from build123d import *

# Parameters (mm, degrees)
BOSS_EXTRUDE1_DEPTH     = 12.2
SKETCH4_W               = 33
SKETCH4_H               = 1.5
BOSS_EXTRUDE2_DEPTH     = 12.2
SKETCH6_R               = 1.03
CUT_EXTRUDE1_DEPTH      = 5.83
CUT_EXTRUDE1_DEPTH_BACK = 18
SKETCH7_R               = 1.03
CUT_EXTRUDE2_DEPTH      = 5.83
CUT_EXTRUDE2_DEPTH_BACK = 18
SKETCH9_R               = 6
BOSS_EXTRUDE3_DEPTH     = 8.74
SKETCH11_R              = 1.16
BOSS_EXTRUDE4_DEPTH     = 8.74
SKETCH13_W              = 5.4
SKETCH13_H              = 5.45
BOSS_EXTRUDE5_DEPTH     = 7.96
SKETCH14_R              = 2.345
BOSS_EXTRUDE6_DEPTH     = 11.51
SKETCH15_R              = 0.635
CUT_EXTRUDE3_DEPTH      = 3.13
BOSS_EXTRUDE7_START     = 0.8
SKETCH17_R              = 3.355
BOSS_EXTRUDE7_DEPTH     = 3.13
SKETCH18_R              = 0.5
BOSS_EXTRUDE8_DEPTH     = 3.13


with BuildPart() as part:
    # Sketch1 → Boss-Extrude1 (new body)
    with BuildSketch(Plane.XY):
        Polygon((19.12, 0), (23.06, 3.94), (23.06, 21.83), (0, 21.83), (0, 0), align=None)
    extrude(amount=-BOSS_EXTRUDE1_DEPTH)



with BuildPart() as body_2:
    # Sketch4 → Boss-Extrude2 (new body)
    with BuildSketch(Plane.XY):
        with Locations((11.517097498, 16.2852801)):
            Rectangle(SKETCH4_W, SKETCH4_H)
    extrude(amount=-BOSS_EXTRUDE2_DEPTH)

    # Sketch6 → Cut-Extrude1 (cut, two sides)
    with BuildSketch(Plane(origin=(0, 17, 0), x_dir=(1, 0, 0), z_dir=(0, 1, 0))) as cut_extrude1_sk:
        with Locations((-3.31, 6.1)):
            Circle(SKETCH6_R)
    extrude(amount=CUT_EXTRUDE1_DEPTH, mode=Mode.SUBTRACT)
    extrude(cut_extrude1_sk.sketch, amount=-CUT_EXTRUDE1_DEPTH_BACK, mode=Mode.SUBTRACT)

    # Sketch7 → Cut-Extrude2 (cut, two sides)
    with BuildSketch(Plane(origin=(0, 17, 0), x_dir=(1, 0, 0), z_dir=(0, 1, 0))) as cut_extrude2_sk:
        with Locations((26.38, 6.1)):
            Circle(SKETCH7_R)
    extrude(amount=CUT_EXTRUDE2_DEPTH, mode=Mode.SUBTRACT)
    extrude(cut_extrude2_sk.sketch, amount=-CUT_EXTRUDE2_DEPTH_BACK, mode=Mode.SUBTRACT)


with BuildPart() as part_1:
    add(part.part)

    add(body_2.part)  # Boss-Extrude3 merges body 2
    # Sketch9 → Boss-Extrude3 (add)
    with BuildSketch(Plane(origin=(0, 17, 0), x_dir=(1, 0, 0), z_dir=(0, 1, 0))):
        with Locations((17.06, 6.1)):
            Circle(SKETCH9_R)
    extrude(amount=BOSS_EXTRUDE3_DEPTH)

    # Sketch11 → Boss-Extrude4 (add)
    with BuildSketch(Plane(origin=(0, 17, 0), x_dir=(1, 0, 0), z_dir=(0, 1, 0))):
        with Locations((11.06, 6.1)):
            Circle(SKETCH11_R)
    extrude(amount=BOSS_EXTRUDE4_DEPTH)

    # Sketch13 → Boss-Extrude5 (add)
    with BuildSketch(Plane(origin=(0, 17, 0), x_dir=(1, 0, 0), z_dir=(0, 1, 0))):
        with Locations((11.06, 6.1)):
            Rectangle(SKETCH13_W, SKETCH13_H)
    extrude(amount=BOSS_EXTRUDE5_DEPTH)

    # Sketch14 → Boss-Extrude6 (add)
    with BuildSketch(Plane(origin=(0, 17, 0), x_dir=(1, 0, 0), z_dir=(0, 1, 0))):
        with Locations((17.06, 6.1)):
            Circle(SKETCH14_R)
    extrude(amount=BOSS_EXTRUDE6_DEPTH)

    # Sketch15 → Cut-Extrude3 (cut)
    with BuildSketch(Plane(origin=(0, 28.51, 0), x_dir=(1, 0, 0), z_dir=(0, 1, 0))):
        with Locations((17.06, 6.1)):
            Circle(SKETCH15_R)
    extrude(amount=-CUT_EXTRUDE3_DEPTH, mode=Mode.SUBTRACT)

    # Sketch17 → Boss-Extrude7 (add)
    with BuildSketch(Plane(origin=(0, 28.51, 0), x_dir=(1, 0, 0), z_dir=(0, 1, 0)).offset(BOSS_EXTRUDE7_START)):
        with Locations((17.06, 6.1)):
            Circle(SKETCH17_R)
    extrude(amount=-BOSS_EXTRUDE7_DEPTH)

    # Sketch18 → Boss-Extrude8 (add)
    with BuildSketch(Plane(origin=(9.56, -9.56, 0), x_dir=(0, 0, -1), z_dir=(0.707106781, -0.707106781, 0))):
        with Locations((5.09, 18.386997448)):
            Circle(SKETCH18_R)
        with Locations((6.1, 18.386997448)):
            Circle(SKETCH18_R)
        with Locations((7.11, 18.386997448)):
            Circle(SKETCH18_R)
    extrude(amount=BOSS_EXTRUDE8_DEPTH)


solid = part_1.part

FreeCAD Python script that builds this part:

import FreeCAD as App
import Part
import Sketcher

V = App.Vector
Q = App.Units.Quantity


def add_polygon(sketch, points):
    """Adds a closed chain of lines whose ends are joined by coincident constraints."""
    first, n = sketch.GeometryCount, len(points)
    for a, b in zip(points, points[1:] + points[:1]):
        sketch.addGeometry(Part.LineSegment(App.Vector(*a, 0), App.Vector(*b, 0)), False)
    for i in range(n):
        sketch.addConstraint(Sketcher.Constraint("Coincident", first + i, 2, first + (i + 1) % n, 1))

doc = App.newDocument("Part")
body = doc.addObject("PartDesign::Body", "Body")

sketch1 = body.newObject("Sketcher::SketchObject", "Sketch")
sketch1.AttachmentSupport = (doc.getObject("XY_Plane"), [""])
sketch1.MapMode = "FlatFace"
add_polygon(sketch1, [(19.12, 0), (23.06, 3.94), (23.06, 21.83), (0, 21.83), (0, 0)])
sketch1.addConstraint([
    Sketcher.Constraint("Vertical", 1),
    Sketcher.Constraint("Horizontal", 2),
    Sketcher.Constraint("Vertical", 3),
    Sketcher.Constraint("Horizontal", 4),
    Sketcher.Constraint("Coincident", 3, 2, -1, 1),
    Sketcher.Constraint("Angle", 0, Q("45 deg")),
    Sketcher.Constraint("DistanceX", 2, 2, 2, 1, 23.06),
    Sketcher.Constraint("DistanceX", 4, 1, 4, 2, 19.12),
    Sketcher.Constraint("DistanceY", 1, 1, 1, 2, 17.89),
])
pad1 = body.newObject("PartDesign::Pad", "Pad")
pad1.Profile = sketch1
pad1.Length = 12.2
pad1.Reversed = True
body2 = doc.addObject("PartDesign::Body", "Body001")

sketch2 = body2.newObject("Sketcher::SketchObject", "Sketch001")
sketch2.AttachmentSupport = (doc.getObject("XY_Plane001"), [""])
sketch2.MapMode = "FlatFace"
add_polygon(sketch2, [(-4.982903, 17.03528), (-4.982903, 15.53528), (28.017097, 15.53528), (28.017097, 17.03528)])
sketch2.addConstraint([
    Sketcher.Constraint("Vertical", 0),
    Sketcher.Constraint("Horizontal", 1),
    Sketcher.Constraint("Vertical", 2),
    Sketcher.Constraint("Horizontal", 3),
    Sketcher.Constraint("DistanceX", 1, 1, 1, 2, 33.0),
    Sketcher.Constraint("DistanceY", 0, 2, 0, 1, 1.5),
    Sketcher.Constraint("DistanceY", -1, 1, 0, 2, 15.53528),
    Sketcher.Constraint("DistanceX", 0, 2, -1, 1, 4.982903),
])
pad2 = body2.newObject("PartDesign::Pad", "Pad001")
pad2.Profile = sketch2
pad2.Length = 12.2
pad2.Reversed = True

sketch3 = body2.newObject("Sketcher::SketchObject", "Sketch002")
sketch3.AttachmentSupport = (doc.getObject("XZ_Plane001"), [""])
sketch3.MapMode = "FlatFace"
sketch3.AttachmentOffset = App.Placement(V(0, 0, -17), App.Rotation())
sketch3.addGeometry(Part.Circle(V(-3.31, -6.1, 0), V(0, 0, 1), 1.03), False)
sketch3.addConstraint([
    Sketcher.Constraint("Diameter", 0, 2.06),
    Sketcher.Constraint("DistanceY", 0, 3, -1, 1, 6.1),
    Sketcher.Constraint("DistanceX", 0, 3, -1, 1, 3.31),
])
pocket1 = body2.newObject("PartDesign::Pocket", "Pocket")
pocket1.Profile = sketch3
pocket1.Type = "ThroughAll"
pocket1.Midplane = True

sketch4 = body2.newObject("Sketcher::SketchObject", "Sketch003")
sketch4.AttachmentSupport = (doc.getObject("XZ_Plane001"), [""])
sketch4.MapMode = "FlatFace"
sketch4.AttachmentOffset = App.Placement(V(0, 0, -17), App.Rotation())
sketch4.addGeometry(Part.Circle(V(26.38, -6.1, 0), V(0, 0, 1), 1.03), False)
sketch4.addConstraint([
    Sketcher.Constraint("Diameter", 0, 2.06),
    Sketcher.Constraint("DistanceY", 0, 3, -1, 1, 6.1),
    Sketcher.Constraint("DistanceX", -1, 1, 0, 3, 26.38),
])
pocket2 = body2.newObject("PartDesign::Pocket", "Pocket001")
pocket2.Profile = sketch4
pocket2.Type = "ThroughAll"
pocket2.Midplane = True
doc.recompute()

boolean = body.newObject("PartDesign::Boolean", "Boolean")
boolean.Type = "Fuse"
boolean.addObjects([body2])

sketch5 = body.newObject("Sketcher::SketchObject", "Sketch004")
sketch5.AttachmentSupport = (doc.getObject("XZ_Plane"), [""])
sketch5.MapMode = "FlatFace"
sketch5.AttachmentOffset = App.Placement(V(0, 0, -17), App.Rotation())
sketch5.addGeometry(Part.Circle(V(17.06, -6.1, 0), V(0, 0, 1), 6), False)
sketch5.addConstraint([
    Sketcher.Constraint("Diameter", 0, 12.0),
    Sketcher.Constraint("DistanceY", 0, 3, -1, 1, 6.1),
    Sketcher.Constraint("DistanceX", -1, 1, 0, 3, 17.06),
])
pad3 = body.newObject("PartDesign::Pad", "Pad002")
pad3.Profile = sketch5
pad3.Length = 8.74
pad3.Reversed = True

sketch6 = body.newObject("Sketcher::SketchObject", "Sketch005")
sketch6.AttachmentSupport = (doc.getObject("XZ_Plane"), [""])
sketch6.MapMode = "FlatFace"
sketch6.AttachmentOffset = App.Placement(V(0, 0, -17), App.Rotation())
sketch6.addGeometry(Part.Circle(V(11.06, -6.1, 0), V(0, 0, 1), 1.16), False)
sketch6.addConstraint([
    Sketcher.Constraint("Diameter", 0, 2.32),
    Sketcher.Constraint("DistanceY", 0, 3, -1, 1, 6.1),
    Sketcher.Constraint("DistanceX", -1, 1, 0, 3, 11.06),
])
pad4 = body.newObject("PartDesign::Pad", "Pad003")
pad4.Profile = sketch6
pad4.Length = 8.74
pad4.Reversed = True

sketch7 = body.newObject("Sketcher::SketchObject", "Sketch006")
sketch7.AttachmentSupport = (doc.getObject("XZ_Plane"), [""])
sketch7.MapMode = "FlatFace"
sketch7.AttachmentOffset = App.Placement(V(0, 0, -17), App.Rotation())
add_polygon(sketch7, [(8.36, -8.825), (8.36, -3.375), (13.76, -3.375), (13.76, -8.825)])
sketch7.addConstraint([
    Sketcher.Constraint("Vertical", 0),
    Sketcher.Constraint("Horizontal", 1),
    Sketcher.Constraint("Vertical", 2),
    Sketcher.Constraint("Horizontal", 3),
    Sketcher.Constraint("DistanceX", 1, 1, 1, 2, 5.4),
    Sketcher.Constraint("DistanceY", 0, 1, 0, 2, 5.45),
    Sketcher.Constraint("DistanceX", -1, 1, 0, 2, 8.36),
    Sketcher.Constraint("DistanceY", 0, 2, -1, 1, 3.375),
])
pad5 = body.newObject("PartDesign::Pad", "Pad004")
pad5.Profile = sketch7
pad5.Length = 7.96
pad5.Reversed = True

sketch8 = body.newObject("Sketcher::SketchObject", "Sketch007")
sketch8.AttachmentSupport = (doc.getObject("XZ_Plane"), [""])
sketch8.MapMode = "FlatFace"
sketch8.AttachmentOffset = App.Placement(V(0, 0, -17), App.Rotation())
sketch8.addGeometry(Part.Circle(V(17.06, -6.1, 0), V(0, 0, 1), 2.345), False)
sketch8.addConstraint([
    Sketcher.Constraint("Diameter", 0, 4.69),
    Sketcher.Constraint("DistanceY", 0, 3, -1, 1, 6.1),
    Sketcher.Constraint("DistanceX", -1, 1, 0, 3, 17.06),
])
pad6 = body.newObject("PartDesign::Pad", "Pad005")
pad6.Profile = sketch8
pad6.Length = 11.51
pad6.Reversed = True

sketch9 = body.newObject("Sketcher::SketchObject", "Sketch008")
sketch9.AttachmentSupport = (doc.getObject("XZ_Plane"), [""])
sketch9.MapMode = "FlatFace"
sketch9.AttachmentOffset = App.Placement(V(0, 0, -28.51), App.Rotation())
sketch9.addGeometry(Part.Circle(V(17.06, -6.1, 0), V(0, 0, 1), 0.635), False)
sketch9.addConstraint([
    Sketcher.Constraint("Diameter", 0, 1.27),
    Sketcher.Constraint("DistanceY", 0, 3, -1, 1, 6.1),
    Sketcher.Constraint("DistanceX", -1, 1, 0, 3, 17.06),
])
pocket3 = body.newObject("PartDesign::Pocket", "Pocket002")
pocket3.Profile = sketch9
pocket3.Length = 3.13
pocket3.Reversed = True

sketch10 = body.newObject("Sketcher::SketchObject", "Sketch009")
sketch10.AttachmentSupport = (doc.getObject("XZ_Plane"), [""])
sketch10.MapMode = "FlatFace"
sketch10.AttachmentOffset = App.Placement(V(0, 0, -29.31), App.Rotation())
sketch10.addGeometry(Part.Circle(V(17.06, -6.1, 0), V(0, 0, 1), 3.355), False)
sketch10.addConstraint([
    Sketcher.Constraint("Diameter", 0, 6.71),
    Sketcher.Constraint("DistanceY", 0, 3, -1, 1, 6.1),
    Sketcher.Constraint("DistanceX", -1, 1, 0, 3, 17.06),
])
pad7 = body.newObject("PartDesign::Pad", "Pad006")
pad7.Profile = sketch10
pad7.Length = 3.13

sketch11 = body.newObject("Sketcher::SketchObject", "Sketch010")
sketch11.Placement = App.Placement(V(9.56, -9.56, 0), App.Rotation(V(0, 0, -1), V(0.707106781, 0.707106781, 0), V(0.707106781, -0.707106781, 0), "ZXY"))
sketch11.addGeometry([
    Part.Circle(V(5.09, 18.386997, 0), V(0, 0, 1), 0.5),
    Part.Circle(V(6.1, 18.386997, 0), V(0, 0, 1), 0.5),
    Part.Circle(V(7.11, 18.386997, 0), V(0, 0, 1), 0.5),
], False)
sketch11.addConstraint([
    Sketcher.Constraint("Equal", 0, 1),
    Sketcher.Constraint("Equal", 1, 2),
    Sketcher.Constraint("Horizontal", 0, 3, 1, 3),
    Sketcher.Constraint("Horizontal", 1, 3, 2, 3),
    Sketcher.Constraint("Diameter", 0, 1.0),
    Sketcher.Constraint("DistanceX", -1, 1, 1, 3, 6.1),
    Sketcher.Constraint("DistanceX", -1, 1, 0, 3, 5.09),
    Sketcher.Constraint("DistanceX", -1, 1, 2, 3, 7.11),
    Sketcher.Constraint("DistanceY", -1, 1, 0, 3, 18.386997),
])
pad8 = body.newObject("PartDesign::Pad", "Pad007")
pad8.Profile = sketch11
pad8.Length = 3.13

doc.recompute()
